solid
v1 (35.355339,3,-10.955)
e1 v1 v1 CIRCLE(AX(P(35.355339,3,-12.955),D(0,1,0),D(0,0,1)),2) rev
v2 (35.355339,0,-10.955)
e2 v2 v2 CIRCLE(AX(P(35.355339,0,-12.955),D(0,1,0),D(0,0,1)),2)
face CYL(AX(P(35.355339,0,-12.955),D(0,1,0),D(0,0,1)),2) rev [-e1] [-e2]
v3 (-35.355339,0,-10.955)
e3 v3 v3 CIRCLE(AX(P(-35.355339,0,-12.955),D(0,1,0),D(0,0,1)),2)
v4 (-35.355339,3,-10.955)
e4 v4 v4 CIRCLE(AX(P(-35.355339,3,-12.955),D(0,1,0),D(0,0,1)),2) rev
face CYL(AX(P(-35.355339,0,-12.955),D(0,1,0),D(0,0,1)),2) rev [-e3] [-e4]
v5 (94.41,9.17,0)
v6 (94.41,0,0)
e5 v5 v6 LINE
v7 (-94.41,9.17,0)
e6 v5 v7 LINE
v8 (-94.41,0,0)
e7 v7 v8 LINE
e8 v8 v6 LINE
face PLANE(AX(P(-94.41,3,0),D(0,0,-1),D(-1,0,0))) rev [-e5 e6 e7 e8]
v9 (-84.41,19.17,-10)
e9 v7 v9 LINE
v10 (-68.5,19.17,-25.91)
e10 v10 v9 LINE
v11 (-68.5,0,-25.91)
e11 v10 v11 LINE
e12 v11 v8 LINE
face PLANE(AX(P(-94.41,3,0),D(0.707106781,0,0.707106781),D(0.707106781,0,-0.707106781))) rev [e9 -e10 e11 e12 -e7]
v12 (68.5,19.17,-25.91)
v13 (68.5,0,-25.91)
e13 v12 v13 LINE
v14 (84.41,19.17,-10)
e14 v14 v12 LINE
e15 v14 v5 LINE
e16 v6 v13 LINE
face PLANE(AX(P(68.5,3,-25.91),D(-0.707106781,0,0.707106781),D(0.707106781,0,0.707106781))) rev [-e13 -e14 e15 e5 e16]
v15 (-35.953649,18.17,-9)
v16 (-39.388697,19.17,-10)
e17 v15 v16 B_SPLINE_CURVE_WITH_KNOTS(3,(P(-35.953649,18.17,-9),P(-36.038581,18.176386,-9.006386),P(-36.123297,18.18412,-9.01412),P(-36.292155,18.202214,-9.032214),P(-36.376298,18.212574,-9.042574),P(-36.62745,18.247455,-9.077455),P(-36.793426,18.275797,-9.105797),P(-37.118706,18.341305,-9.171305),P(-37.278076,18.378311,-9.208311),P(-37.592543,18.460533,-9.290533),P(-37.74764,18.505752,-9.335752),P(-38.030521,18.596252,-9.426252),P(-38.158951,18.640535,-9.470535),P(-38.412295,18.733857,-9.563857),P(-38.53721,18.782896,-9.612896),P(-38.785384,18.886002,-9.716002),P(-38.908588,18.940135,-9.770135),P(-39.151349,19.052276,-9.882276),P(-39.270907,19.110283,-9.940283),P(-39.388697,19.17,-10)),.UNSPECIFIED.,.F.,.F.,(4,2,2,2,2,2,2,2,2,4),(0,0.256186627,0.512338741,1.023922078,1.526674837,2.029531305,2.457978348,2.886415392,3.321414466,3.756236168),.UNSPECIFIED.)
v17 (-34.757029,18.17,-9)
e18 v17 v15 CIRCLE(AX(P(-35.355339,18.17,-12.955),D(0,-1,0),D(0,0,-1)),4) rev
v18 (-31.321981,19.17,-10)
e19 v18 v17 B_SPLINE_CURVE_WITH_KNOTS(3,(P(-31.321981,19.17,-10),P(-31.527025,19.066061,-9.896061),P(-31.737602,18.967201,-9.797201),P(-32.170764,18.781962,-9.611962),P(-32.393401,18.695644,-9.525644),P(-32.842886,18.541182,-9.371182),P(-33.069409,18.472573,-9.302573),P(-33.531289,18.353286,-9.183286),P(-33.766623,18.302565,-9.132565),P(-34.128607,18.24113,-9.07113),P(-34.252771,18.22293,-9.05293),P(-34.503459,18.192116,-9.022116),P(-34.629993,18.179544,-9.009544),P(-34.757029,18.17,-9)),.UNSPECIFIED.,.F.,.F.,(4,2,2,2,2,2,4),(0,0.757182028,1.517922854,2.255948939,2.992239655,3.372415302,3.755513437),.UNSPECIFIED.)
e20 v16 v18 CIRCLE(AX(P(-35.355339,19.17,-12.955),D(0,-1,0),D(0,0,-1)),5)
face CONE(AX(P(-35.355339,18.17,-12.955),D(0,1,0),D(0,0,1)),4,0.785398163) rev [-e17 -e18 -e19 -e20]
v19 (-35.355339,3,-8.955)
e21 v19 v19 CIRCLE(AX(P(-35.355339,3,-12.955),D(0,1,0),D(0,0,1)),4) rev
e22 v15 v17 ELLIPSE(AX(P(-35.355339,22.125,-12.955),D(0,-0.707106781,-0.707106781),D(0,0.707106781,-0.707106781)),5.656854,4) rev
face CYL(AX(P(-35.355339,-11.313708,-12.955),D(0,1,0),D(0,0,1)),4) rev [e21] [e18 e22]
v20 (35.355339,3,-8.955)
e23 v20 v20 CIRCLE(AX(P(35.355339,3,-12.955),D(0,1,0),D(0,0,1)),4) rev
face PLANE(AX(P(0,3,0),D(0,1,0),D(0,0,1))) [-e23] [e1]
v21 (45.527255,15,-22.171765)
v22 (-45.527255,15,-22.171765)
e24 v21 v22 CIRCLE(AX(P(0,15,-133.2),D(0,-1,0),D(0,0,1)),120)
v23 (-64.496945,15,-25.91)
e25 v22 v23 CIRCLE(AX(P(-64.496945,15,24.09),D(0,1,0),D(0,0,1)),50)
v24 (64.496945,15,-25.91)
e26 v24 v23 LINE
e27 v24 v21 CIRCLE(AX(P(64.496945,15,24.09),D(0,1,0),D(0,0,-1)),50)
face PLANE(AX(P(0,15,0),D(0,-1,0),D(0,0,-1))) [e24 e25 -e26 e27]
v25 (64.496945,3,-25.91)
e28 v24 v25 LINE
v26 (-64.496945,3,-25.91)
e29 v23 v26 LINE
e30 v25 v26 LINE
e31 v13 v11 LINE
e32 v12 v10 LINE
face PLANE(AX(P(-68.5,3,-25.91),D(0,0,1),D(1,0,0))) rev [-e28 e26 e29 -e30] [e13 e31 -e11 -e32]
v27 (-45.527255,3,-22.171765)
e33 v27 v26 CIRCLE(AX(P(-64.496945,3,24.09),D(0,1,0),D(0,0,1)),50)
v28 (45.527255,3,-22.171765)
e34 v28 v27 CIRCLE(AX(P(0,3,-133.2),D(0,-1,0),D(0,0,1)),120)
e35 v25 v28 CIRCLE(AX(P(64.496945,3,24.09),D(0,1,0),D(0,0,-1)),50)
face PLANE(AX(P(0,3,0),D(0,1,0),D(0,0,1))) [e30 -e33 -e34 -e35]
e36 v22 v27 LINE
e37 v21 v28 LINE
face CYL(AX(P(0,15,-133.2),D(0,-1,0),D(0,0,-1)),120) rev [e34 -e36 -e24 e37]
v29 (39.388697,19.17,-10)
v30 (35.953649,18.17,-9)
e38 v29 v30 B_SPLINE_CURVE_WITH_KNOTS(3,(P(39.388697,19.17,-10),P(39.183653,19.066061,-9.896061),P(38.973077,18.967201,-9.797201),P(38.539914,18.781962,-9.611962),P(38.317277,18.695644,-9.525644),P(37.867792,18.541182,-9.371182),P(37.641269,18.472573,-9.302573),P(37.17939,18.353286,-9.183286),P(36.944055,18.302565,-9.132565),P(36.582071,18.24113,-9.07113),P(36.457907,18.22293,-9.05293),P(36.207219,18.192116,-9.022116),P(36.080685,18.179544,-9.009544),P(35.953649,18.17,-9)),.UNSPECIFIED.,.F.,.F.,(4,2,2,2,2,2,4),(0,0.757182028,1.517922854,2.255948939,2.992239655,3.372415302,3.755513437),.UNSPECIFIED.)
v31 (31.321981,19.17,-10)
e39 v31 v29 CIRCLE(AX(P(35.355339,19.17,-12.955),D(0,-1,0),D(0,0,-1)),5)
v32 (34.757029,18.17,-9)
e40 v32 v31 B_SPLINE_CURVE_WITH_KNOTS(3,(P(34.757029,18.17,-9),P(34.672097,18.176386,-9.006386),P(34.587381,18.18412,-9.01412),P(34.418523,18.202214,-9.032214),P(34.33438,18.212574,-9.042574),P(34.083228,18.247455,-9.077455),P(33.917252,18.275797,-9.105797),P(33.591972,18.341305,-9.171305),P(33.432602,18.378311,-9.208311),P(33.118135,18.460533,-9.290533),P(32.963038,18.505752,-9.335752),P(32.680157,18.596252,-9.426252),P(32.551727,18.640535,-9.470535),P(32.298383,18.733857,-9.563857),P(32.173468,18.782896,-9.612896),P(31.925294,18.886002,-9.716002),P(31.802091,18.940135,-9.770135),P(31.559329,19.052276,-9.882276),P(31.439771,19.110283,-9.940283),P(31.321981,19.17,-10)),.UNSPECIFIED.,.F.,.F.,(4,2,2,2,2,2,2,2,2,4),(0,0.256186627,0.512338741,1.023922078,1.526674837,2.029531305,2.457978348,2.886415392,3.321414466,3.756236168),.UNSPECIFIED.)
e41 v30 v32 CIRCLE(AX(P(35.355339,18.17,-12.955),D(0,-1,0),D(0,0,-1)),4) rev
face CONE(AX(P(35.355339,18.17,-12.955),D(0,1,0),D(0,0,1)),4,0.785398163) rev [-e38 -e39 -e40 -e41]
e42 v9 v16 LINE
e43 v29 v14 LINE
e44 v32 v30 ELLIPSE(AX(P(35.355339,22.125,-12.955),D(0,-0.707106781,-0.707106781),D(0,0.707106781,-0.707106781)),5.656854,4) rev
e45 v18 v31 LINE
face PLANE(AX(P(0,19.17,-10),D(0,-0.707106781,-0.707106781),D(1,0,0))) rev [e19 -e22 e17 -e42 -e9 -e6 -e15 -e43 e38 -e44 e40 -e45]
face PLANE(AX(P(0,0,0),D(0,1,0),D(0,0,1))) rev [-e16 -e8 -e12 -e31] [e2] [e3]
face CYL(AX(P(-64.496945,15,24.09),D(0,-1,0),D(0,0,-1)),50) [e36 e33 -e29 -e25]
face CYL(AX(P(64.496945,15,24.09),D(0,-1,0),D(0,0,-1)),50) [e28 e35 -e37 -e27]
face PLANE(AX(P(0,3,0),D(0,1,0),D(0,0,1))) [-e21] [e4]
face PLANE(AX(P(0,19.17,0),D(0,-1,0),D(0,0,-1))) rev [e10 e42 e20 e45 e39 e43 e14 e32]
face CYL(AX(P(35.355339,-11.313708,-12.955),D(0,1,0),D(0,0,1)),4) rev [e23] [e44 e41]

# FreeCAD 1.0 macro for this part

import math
import FreeCAD as App
import Part
import Sketcher
from FreeCAD import Vector
Q = App.Units.Quantity


def edges_at(feature, points):
    """Names of the edges that pass closest to the given points."""
    edges = feature.Shape.Edges
    near = lambda p: min(range(len(edges)), key=lambda i: edges[i].distToShape(Part.Vertex(*p))[0])
    return sorted({f"Edge{near(p) + 1}" for p in points})

doc = App.newDocument("Part")
body = doc.addObject("PartDesign::Body", "Body")

# Sketch on XZ plane
sketch1 = body.newObject("Sketcher::SketchObject", "Sketch")
sketch1.AttachmentSupport = (doc.getObject("XZ_Plane"), [""])
sketch1.MapMode = "FlatFace"
sketch1.addGeometry([
    Part.LineSegment(Vector(-94, 0, 0), Vector(94, 0, 0)),
    Part.LineSegment(Vector(94, 0, 0), Vector(68, -26, 0)),
    Part.LineSegment(Vector(68, -26, 0), Vector(-68, -26, 0)),
    Part.LineSegment(Vector(-68, -26, 0), Vector(-94, 0, 0)),
], False)
sketch1.addConstraint([
    Sketcher.Constraint("Coincident", 0, 2, 1, 1),
    Sketcher.Constraint("Coincident", 1, 2, 2, 1),
    Sketcher.Constraint("Coincident", 2, 2, 3, 1),
    Sketcher.Constraint("Coincident", 3, 2, 0, 1),
    Sketcher.Constraint("Horizontal", 0),
    Sketcher.Constraint("Horizontal", 2),
    Sketcher.Constraint("Symmetric", 0, 2, 3, 2, -1, 1),
    Sketcher.Constraint("Perpendicular", 1, 3),
    Sketcher.Constraint("Equal", 1, 3),
    Sketcher.Constraint("DistanceX", 2, 2, 2, 1, Q("137 mm")),
    Sketcher.Constraint("DistanceX", 0, 1, 0, 2, Q("188.82 mm")),
])
pad1 = body.newObject("PartDesign::Pad", "Pad")
pad1.Profile = sketch1
pad1.Length = 3
pad1.Reversed = True

# Sketch on XZ plane
sketch2 = body.newObject("Sketcher::SketchObject", "Sketch001")
sketch2.AttachmentSupport = (doc.getObject("XZ_Plane"), [""])
sketch2.MapMode = "FlatFace"
sketch2.AttachmentOffset = App.Placement(Vector(0, 0, -3), App.Rotation())
sketch2.addGeometry([
    Part.LineSegment(Vector(-64.5, -25.9, 0), Vector(-68.5, -25.9, 0)),  # 0
    Part.LineSegment(Vector(-68.5, -25.9, 0), Vector(-94.4, 0, 0)),  # 1
    Part.LineSegment(Vector(-94.4, 0, 0), Vector(94.4, 0, 0)),  # 2
    Part.LineSegment(Vector(94.4, 0, 0), Vector(68.5, -25.9, 0)),  # 3
    Part.LineSegment(Vector(68.5, -25.9, 0), Vector(64.5, -25.9, 0)),  # 4
    Part.ArcOfCircle(Part.Circle(Vector(64.5, 24.1, 0), Vector(0, 0, 1), 50), math.radians(-112), math.radians(-90)),  # 5
    Part.ArcOfCircle(Part.Circle(Vector(0, -133.2, 0), Vector(0, 0, 1), 120), math.radians(68), math.radians(112)),  # 6
    Part.ArcOfCircle(Part.Circle(Vector(-64.5, 24.1, 0), Vector(0, 0, 1), 50), math.radians(-90), math.radians(-68)),  # 7
], False)
sketch2.addConstraint([
    Sketcher.Constraint("Coincident", 0, 2, 1, 1),
    Sketcher.Constraint("Coincident", 1, 2, 2, 1),
    Sketcher.Constraint("Coincident", 2, 2, 3, 1),
    Sketcher.Constraint("Coincident", 3, 2, 4, 1),
    Sketcher.Constraint("Tangent", 4, 2, 5, 2),
    Sketcher.Constraint("Tangent", 5, 1, 6, 1),
    Sketcher.Constraint("Tangent", 6, 2, 7, 2),
    Sketcher.Constraint("Tangent", 7, 1, 0, 1),
    Sketcher.Constraint("Horizontal", 0),
    Sketcher.Constraint("Horizontal", 2),
    Sketcher.Constraint("Horizontal", 4),
    Sketcher.Constraint("Equal", 5, 7),
    Sketcher.Constraint("Symmetric", 1, 2, 2, 2, -1, 1),
    Sketcher.Constraint("Symmetric", 5, 3, 7, 3, -2),
    Sketcher.Constraint("Perpendicular", 1, 3),
    Sketcher.Constraint("Equal", 0, 4),
    Sketcher.Constraint("Radius", 5, Q("50 mm")),
    Sketcher.Constraint("Radius", 6, Q("120 mm")),
    Sketcher.Constraint("DistanceX", 0, 2, 3, 2, Q("137 mm")),
    Sketcher.Constraint("DistanceX", 2, 1, 2, 2, Q("188.82 mm")),
    Sketcher.Constraint("DistanceY", 6, 3, -1, 1, Q("133.2 mm")),
])
pad2 = body.newObject("PartDesign::Pad", "Pad001")
pad2.Profile = sketch2
pad2.Length = 12
pad2.Reversed = True

# Sketch on XZ plane
sketch3 = body.newObject("Sketcher::SketchObject", "Sketch002")
sketch3.AttachmentSupport = (doc.getObject("XZ_Plane"), [""])
sketch3.MapMode = "FlatFace"
sketch3.AttachmentOffset = App.Placement(Vector(0, 0, -15), App.Rotation())
sketch3.addGeometry([
    Part.LineSegment(Vector(-68, -26, 0), Vector(-94, 0, 0)),
    Part.LineSegment(Vector(-94, 0, 0), Vector(94, 0, 0)),
    Part.LineSegment(Vector(94, 0, 0), Vector(68, -26, 0)),
    Part.LineSegment(Vector(68, -26, 0), Vector(-68, -26, 0)),
], False)
sketch3.addConstraint([
    Sketcher.Constraint("Coincident", 0, 2, 1, 1),
    Sketcher.Constraint("Coincident", 1, 2, 2, 1),
    Sketcher.Constraint("Coincident", 2, 2, 3, 1),
    Sketcher.Constraint("Coincident", 3, 2, 0, 1),
    Sketcher.Constraint("Horizontal", 1),
    Sketcher.Constraint("Horizontal", 3),
    Sketcher.Constraint("Symmetric", 0, 2, 1, 2, -1, 1),
    Sketcher.Constraint("Perpendicular", 0, 2),
    Sketcher.Constraint("Equal", 0, 2),
    Sketcher.Constraint("DistanceX", 3, 2, 3, 1, Q("137 mm")),
    Sketcher.Constraint("DistanceX", 1, 1, 1, 2, Q("188.82 mm")),
])
pad3 = body.newObject("PartDesign::Pad", "Pad002")
pad3.Profile = sketch3
pad3.Length = 4.17
pad3.Reversed = True

# Sketch on XZ plane
sketch4 = body.newObject("Sketcher::SketchObject", "Sketch003")
sketch4.AttachmentSupport = (doc.getObject("XZ_Plane"), [""])
sketch4.MapMode = "FlatFace"
sketch4.AttachmentOffset = App.Placement(Vector(0, 0, -3), App.Rotation())
sketch4.addGeometry([
    Part.Circle(Vector(-35.4, -13, 0), Vector(0, 0, 1), 2),
    Part.Circle(Vector(35.4, -13, 0), Vector(0, 0, 1), 2),
], False)
sketch4.addConstraint([
    Sketcher.Constraint("Equal", 0, 1),
    Sketcher.Constraint("Symmetric", 0, 3, 1, 3, -2),
    Sketcher.Constraint("Diameter", 0, Q("4 mm")),
    Sketcher.Constraint("DistanceY", 0, 3, -1, 1, Q("12.955 mm")),
    Sketcher.Constraint("DistanceX", 0, 3, -1, 1, Q("35.355339 mm")),
])
pocket1 = body.newObject("PartDesign::Pocket", "Pocket")
pocket1.Profile = sketch4
pocket1.Type = "ThroughAll"
pocket1.Midplane = True
doc.recompute()

chamfer = body.newObject("PartDesign::Chamfer", "Chamfer")
chamfer.Base = (pocket1, edges_at(pocket1, [(0, 19.17, 0)]))
chamfer.Size = 10

# Sketch on XZ plane
sketch5 = body.newObject("Sketcher::SketchObject", "Sketch004")
sketch5.AttachmentSupport = (doc.getObject("XZ_Plane"), [""])
sketch5.MapMode = "FlatFace"
sketch5.AttachmentOffset = App.Placement(Vector(0, 0, -19.17), App.Rotation())
sketch5.addGeometry([
    Part.Circle(Vector(-35.4, -13, 0), Vector(0, 0, 1), 4),
    Part.Circle(Vector(35.4, -13, 0), Vector(0, 0, 1), 4),
], False)
sketch5.addConstraint([
    Sketcher.Constraint("Equal", 0, 1),
    Sketcher.Constraint("Symmetric", 0, 3, 1, 3, -2),
    Sketcher.Constraint("Diameter", 0, Q("8 mm")),
    Sketcher.Constraint("DistanceY", 0, 3, -1, 1, Q("12.955 mm")),
    Sketcher.Constraint("DistanceX", 0, 3, -1, 1, Q("35.355339 mm")),
])
pocket2 = body.newObject("PartDesign::Pocket", "Pocket001")
pocket2.Profile = sketch5
pocket2.Length = 16.17
pocket2.Reversed = True
doc.recompute()

chamfer2 = body.newObject("PartDesign::Chamfer", "Chamfer001")
chamfer2.Base = (pocket2, edges_at(pocket2, [(-35.355, 19.17, -16.955), (35.355, 19.17, -16.955)]))
chamfer2.Size = 1

doc.recompute()
